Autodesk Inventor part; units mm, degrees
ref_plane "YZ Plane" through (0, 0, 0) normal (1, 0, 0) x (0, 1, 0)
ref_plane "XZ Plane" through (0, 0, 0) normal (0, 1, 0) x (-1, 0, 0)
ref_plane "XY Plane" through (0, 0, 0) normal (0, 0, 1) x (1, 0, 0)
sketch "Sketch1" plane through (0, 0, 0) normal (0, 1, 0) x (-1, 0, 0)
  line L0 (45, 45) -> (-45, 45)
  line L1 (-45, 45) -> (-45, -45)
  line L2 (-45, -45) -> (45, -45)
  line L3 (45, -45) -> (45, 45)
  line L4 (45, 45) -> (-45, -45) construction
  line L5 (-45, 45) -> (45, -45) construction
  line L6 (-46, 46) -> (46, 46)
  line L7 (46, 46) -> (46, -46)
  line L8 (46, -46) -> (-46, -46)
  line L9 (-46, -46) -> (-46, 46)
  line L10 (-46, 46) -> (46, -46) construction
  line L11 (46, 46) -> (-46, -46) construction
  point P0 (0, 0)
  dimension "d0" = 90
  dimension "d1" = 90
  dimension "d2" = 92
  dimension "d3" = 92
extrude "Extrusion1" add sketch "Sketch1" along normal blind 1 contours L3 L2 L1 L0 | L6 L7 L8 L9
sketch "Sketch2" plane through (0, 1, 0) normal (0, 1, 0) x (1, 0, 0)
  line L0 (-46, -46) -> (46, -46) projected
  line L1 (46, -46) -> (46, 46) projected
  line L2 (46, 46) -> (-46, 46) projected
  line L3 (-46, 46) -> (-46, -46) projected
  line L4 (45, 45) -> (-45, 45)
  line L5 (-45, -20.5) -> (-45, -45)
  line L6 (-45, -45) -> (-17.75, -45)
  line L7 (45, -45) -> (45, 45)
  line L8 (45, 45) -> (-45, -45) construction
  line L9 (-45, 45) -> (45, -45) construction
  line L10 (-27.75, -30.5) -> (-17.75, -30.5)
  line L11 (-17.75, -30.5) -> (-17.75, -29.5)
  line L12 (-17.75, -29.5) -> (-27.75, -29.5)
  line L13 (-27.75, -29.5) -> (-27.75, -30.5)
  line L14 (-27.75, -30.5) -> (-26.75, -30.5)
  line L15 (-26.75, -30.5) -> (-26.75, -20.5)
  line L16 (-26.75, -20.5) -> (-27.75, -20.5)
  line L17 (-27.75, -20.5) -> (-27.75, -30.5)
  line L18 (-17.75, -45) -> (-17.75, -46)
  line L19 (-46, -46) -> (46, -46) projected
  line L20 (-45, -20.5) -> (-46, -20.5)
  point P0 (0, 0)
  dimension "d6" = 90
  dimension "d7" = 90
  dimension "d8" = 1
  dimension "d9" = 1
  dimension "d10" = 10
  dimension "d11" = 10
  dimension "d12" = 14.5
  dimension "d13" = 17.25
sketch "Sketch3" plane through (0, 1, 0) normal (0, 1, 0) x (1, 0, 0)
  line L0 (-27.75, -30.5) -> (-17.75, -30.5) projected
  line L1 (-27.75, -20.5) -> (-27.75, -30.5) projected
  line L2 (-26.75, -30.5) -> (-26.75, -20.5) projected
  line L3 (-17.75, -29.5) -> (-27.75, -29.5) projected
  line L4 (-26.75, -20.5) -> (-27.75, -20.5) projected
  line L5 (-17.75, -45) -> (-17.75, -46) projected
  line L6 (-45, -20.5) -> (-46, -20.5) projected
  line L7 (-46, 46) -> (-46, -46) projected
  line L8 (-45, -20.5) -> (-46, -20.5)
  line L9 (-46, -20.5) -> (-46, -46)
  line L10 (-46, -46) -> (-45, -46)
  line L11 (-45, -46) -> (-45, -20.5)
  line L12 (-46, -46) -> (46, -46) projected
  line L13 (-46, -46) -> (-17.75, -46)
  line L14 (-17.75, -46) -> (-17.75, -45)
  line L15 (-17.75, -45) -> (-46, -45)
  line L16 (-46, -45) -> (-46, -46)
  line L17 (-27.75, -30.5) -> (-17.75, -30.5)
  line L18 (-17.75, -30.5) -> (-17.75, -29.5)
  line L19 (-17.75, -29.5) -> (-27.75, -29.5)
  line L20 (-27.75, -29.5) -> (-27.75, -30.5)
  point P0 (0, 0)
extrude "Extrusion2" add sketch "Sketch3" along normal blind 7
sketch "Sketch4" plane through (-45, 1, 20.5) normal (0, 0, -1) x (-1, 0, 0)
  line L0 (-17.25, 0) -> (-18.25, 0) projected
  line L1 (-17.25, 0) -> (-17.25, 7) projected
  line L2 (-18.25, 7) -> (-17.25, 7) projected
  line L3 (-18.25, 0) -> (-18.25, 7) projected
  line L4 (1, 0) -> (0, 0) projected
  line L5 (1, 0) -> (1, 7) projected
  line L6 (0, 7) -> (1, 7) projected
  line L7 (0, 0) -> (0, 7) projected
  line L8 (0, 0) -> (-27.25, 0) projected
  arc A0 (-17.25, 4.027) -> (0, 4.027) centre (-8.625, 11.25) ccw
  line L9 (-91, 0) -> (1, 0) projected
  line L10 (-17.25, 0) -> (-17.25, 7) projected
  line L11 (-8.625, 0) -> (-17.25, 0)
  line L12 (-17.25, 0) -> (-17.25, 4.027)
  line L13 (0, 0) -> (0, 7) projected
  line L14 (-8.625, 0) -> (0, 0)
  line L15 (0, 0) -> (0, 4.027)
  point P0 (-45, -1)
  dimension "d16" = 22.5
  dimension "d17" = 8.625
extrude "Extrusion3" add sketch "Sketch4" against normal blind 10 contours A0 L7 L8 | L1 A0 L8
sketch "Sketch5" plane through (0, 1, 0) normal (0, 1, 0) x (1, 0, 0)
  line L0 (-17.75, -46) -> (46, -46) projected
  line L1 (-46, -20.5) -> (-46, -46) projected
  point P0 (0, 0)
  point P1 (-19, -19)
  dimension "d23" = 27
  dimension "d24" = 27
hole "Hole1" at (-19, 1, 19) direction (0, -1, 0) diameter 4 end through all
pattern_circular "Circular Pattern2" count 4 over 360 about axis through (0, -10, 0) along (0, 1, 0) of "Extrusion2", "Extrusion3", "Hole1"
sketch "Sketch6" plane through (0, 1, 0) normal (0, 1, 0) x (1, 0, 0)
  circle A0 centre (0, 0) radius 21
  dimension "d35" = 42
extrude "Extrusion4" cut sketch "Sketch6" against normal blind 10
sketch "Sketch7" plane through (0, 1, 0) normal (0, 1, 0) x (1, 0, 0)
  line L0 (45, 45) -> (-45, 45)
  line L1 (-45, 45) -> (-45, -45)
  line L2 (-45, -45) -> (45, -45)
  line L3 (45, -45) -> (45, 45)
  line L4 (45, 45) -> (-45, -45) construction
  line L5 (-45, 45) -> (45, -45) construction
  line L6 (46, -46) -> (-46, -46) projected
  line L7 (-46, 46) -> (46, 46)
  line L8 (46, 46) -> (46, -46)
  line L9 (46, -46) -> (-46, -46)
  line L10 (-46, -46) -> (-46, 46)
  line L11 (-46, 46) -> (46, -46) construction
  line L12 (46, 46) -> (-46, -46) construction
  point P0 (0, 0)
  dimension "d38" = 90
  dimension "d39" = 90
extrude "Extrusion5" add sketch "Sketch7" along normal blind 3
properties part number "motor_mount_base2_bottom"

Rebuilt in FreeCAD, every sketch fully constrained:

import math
import FreeCAD as App
import Part
import Sketcher
Q = App.Units.Quantity

doc = App.newDocument("Part")
params = doc.addObject("Spreadsheet::Sheet", "Params")
for row, (alias, value) in enumerate([
    ("sketch1_width", "92 mm"),
    ("pad1_length", "1 mm"),
    ("sketch2_width", "10 mm"),
    ("sketch2_width2", "9 mm"),
    ("sketch2_height", "24.5 mm"),
    ("sketch2_width3", "27.25 mm"),
    ("pad2_length", "7 mm"),
    ("sketch3_radius", "11.25 mm"),
    ("pad3_length", "10 mm"),
    ("sketch4_diameter", "4 mm"),
    ("hole_diameter", "4 mm"),
    ("sketch5_diameter", "42 mm"),
    ("pocket1_length", "10 mm"),
    ("sketch6_width", "90 mm"),
    ("sketch6_width2", "92 mm"),
    ("pad4_length", "3 mm"),
], start=1):
    params.set(f"A{row}", alias)
    params.set(f"B{row}", "=" + value)
    params.setAlias(f"B{row}", alias)

body = doc.addObject("PartDesign::Body", "Body")

# Sketch on XZ plane
sketch1 = body.newObject("Sketcher::SketchObject", "Sketch")
sketch1.AttachmentSupport = (doc.getObject("XZ_Plane"), [""])
sketch1.MapMode = "FlatFace"
sketch1.addGeometry([
    Part.LineSegment(App.Vector(-46, 46, 0), App.Vector(46, 46, 0)),
    Part.LineSegment(App.Vector(46, 46, 0), App.Vector(46, -46, 0)),
    Part.LineSegment(App.Vector(46, -46, 0), App.Vector(-46, -46, 0)),
    Part.LineSegment(App.Vector(-46, -46, 0), App.Vector(-46, 46, 0)),
], False)
sketch1.addConstraint([
    Sketcher.Constraint("Coincident", 0, 2, 1, 1),
    Sketcher.Constraint("Coincident", 1, 2, 2, 1),
    Sketcher.Constraint("Coincident", 2, 2, 3, 1),
    Sketcher.Constraint("Coincident", 3, 2, 0, 1),
    Sketcher.Constraint("Horizontal", 0),
    Sketcher.Constraint("Vertical", 1),
    Sketcher.Constraint("Horizontal", 2),
    Sketcher.Constraint("Vertical", 3),
    Sketcher.Constraint("Symmetric", 0, 2, 2, 2, -1, 1),
    Sketcher.Constraint("Equal", 2, 1),
    Sketcher.Constraint("DistanceX", 0, 1, 0, 2, Q("92 mm")),
])
sketch1.setExpression("Constraints[10]", "Params.sketch1_width")
pad1 = body.newObject("PartDesign::Pad", "Pad")
pad1.Profile = sketch1
pad1.setExpression("Length", "Params.pad1_length")
pad1.Reversed = True

# Sketch on XZ plane
sketch2 = body.newObject("Sketcher::SketchObject", "Sketch001")
sketch2.AttachmentSupport = (doc.getObject("XZ_Plane"), [""])
sketch2.MapMode = "FlatFace"
sketch2.AttachmentOffset = App.Placement(App.Vector(0, 0, -1), App.Rotation())
sketch2.addGeometry([
    Part.LineSegment(App.Vector(-27.8, 30.5, 0), App.Vector(-17.8, 30.5, 0)),  # 0
    Part.LineSegment(App.Vector(-17.8, 30.5, 0), App.Vector(-17.8, 29.5, 0)),  # 1
    Part.LineSegment(App.Vector(-17.8, 29.5, 0), App.Vector(-26.8, 29.5, 0)),  # 2
    Part.LineSegment(App.Vector(-26.8, 29.5, 0), App.Vector(-26.8, 20.5, 0)),  # 3
    Part.LineSegment(App.Vector(-26.8, 20.5, 0), App.Vector(-27.8, 20.5, 0)),  # 4
    Part.LineSegment(App.Vector(-27.8, 20.5, 0), App.Vector(-27.8, 30.5, 0)),  # 5
    Part.LineSegment(App.Vector(-17.8, 46, 0), App.Vector(-17.8, 45, 0)),  # 6
    Part.LineSegment(App.Vector(-17.8, 45, 0), App.Vector(-45, 45, 0)),  # 7
    Part.LineSegment(App.Vector(-45, 45, 0), App.Vector(-45, 20.5, 0)),  # 8
    Part.LineSegment(App.Vector(-45, 20.5, 0), App.Vector(-46, 20.5, 0)),  # 9
    Part.LineSegment(App.Vector(-46, 20.5, 0), App.Vector(-46, 46, 0)),  # 10
    Part.LineSegment(App.Vector(-46, 46, 0), App.Vector(-17.8, 46, 0)),  # 11
], False)
sketch2.addConstraint([
    Sketcher.Constraint("Coincident", 0, 2, 1, 1),
    Sketcher.Constraint("Coincident", 1, 2, 2, 1),
    Sketcher.Constraint("Coincident", 2, 2, 3, 1),
    Sketcher.Constraint("Coincident", 3, 2, 4, 1),
    Sketcher.Constraint("Coincident", 4, 2, 5, 1),
    Sketcher.Constraint("Coincident", 5, 2, 0, 1),
    Sketcher.Constraint("Coincident", 6, 2, 7, 1),
    Sketcher.Constraint("Coincident", 7, 2, 8, 1),
    Sketcher.Constraint("Coincident", 8, 2, 9, 1),
    Sketcher.Constraint("Coincident", 9, 2, 10, 1),
    Sketcher.Constraint("Coincident", 10, 2, 11, 1),
    Sketcher.Constraint("Coincident", 11, 2, 6, 1),
    Sketcher.Constraint("Horizontal", 0),
    Sketcher.Constraint("Vertical", 1),
    Sketcher.Constraint("Horizontal", 2),
    Sketcher.Constraint("Vertical", 3),
    Sketcher.Constraint("Horizontal", 4),
    Sketcher.Constraint("Vertical", 5),
    Sketcher.Constraint("Vertical", 6),
    Sketcher.Constraint("Horizontal", 7),
    Sketcher.Constraint("Vertical", 8),
    Sketcher.Constraint("Horizontal", 9),
    Sketcher.Constraint("Vertical", 10),
    Sketcher.Constraint("Horizontal", 11),
    Sketcher.Constraint("Horizontal", 4, 2, 8, 2),
    Sketcher.Constraint("Vertical", 1, 2, 6, 2),
    Sketcher.Constraint("Equal", 4, 9),
    Sketcher.Constraint("Equal", 9, 1),
    Sketcher.Constraint("Equal", 2, 3),
    Sketcher.Constraint("Equal", 1, 6),
    Sketcher.Constraint("DistanceX", 0, 1, 0, 2, Q("10 mm")),
    Sketcher.Constraint("DistanceX", 2, 2, 2, 1, Q("9 mm")),
    Sketcher.Constraint("DistanceY", 8, 2, 8, 1, Q("24.5 mm")),
    Sketcher.Constraint("DistanceY", -1, 1, 6, 2, Q("45 mm")),
    Sketcher.Constraint("DistanceX", 7, 2, -1, 1, Q("45 mm")),
    Sketcher.Constraint("DistanceX", 7, 2, 7, 1, Q("27.25 mm")),
])
sketch2.setExpression("Constraints[30]", "Params.sketch2_width")
sketch2.setExpression("Constraints[31]", "Params.sketch2_width2")
sketch2.setExpression("Constraints[32]", "Params.sketch2_height")
sketch2.setExpression("Constraints[35]", "Params.sketch2_width3")
pad2 = body.newObject("PartDesign::Pad", "Pad001")
pad2.Profile = sketch2
pad2.setExpression("Length", "Params.pad2_length")
pad2.Reversed = True

# Sketch on XY plane
sketch3 = body.newObject("Sketcher::SketchObject", "Sketch002")
sketch3.AttachmentSupport = (doc.getObject("XY_Plane"), [""])
sketch3.MapMode = "FlatFace"
sketch3.AttachmentOffset = App.Placement(App.Vector(0, 0, 20.5), App.Rotation())
sketch3.addGeometry([
    Part.ArcOfCircle(Part.Circle(App.Vector(-36.4, 12.2, 0), App.Vector(0, 0, 1), 11.2), math.radians(-140), math.radians(-90)),  # 0
    Part.LineSegment(App.Vector(-36.4, 1, 0), App.Vector(-45, 1, 0)),  # 1
    Part.LineSegment(App.Vector(-45, 1, 0), App.Vector(-45, 5, 0)),  # 2
    Part.LineSegment(App.Vector(-27.8, 5, 0), App.Vector(-27.8, 1, 0)),  # 3
    Part.LineSegment(App.Vector(-27.8, 1, 0), App.Vector(-36.4, 1, 0)),  # 4
    Part.ArcOfCircle(Part.Circle(App.Vector(-36.4, 12.2, 0), App.Vector(0, 0, 1), 11.2), math.radians(-90), math.radians(-40)),  # 5
], False)
sketch3.addConstraint([
    Sketcher.Constraint("Tangent", 0, 2, 1, 1),
    Sketcher.Constraint("Coincident", 1, 2, 2, 1),
    Sketcher.Constraint("Coincident", 2, 2, 0, 1),
    Sketcher.Constraint("Coincident", 3, 2, 4, 1),
    Sketcher.Constraint("Tangent", 4, 2, 5, 1),
    Sketcher.Constraint("Coincident", 5, 2, 3, 1),
    Sketcher.Constraint("Horizontal", 1),
    Sketcher.Constraint("Vertical", 2),
    Sketcher.Constraint("Vertical", 3),
    Sketcher.Constraint("Horizontal", 4),
    Sketcher.Constraint("Coincident", 5, 3, 0, 3),
    Sketcher.Constraint("Equal", 0, 5),
    Sketcher.Constraint("Horizontal", 2, 2, 5, 2),
    Sketcher.Constraint("Radius", 0, Q("11.25 mm")),
    Sketcher.Constraint("DistanceX", 1, 2, 1, 1, Q("8.625 mm")),
    Sketcher.Constraint("DistanceY", -1, 1, 0, 2, Q("1 mm")),
    Sketcher.Constraint("DistanceX", 1, 2, -1, 1, Q("45 mm")),
])
sketch3.setExpression("Constraints[13]", "Params.sketch3_radius")
pad3 = body.newObject("PartDesign::Pad", "Pad002")
pad3.Profile = sketch3
pad3.setExpression("Length", "Params.pad3_length")

# Sketch on XZ plane
sketch4 = body.newObject("Sketcher::SketchObject", "Sketch003")
sketch4.AttachmentSupport = (doc.getObject("XZ_Plane"), [""])
sketch4.MapMode = "FlatFace"
sketch4.AttachmentOffset = App.Placement(App.Vector(0, 0, -1), App.Rotation())
sketch4.addGeometry(Part.Circle(App.Vector(-19, 19, 0), App.Vector(0, 0, 1), 2), False)
sketch4.addConstraint([
    Sketcher.Constraint("Diameter", 0, Q("4 mm")),
    Sketcher.Constraint("DistanceX", 0, 3, -1, 1, Q("19 mm")),
    Sketcher.Constraint("DistanceY", -1, 1, 0, 3, Q("19 mm")),
])
sketch4.setExpression("Constraints[0]", "Params.sketch4_diameter")
doc.recompute()
hole = body.newObject("PartDesign::Hole", "Hole")
hole.Profile = sketch4
hole.ThreadType = "None"
hole.setExpression("Diameter", "Params.hole_diameter")
hole.DepthType = "ThroughAll"
hole.Reversed = True
doc.recompute()

polarpattern = body.newObject("PartDesign::PolarPattern", "PolarPattern")
polarpattern.Originals = [pad2, pad3, hole]
polarpattern.Axis = (doc.getObject("Y_Axis"), [""])
polarpattern.Angle = 360
polarpattern.Occurrences = 4
body.Tip = polarpattern

# Sketch on XZ plane
sketch5 = body.newObject("Sketcher::SketchObject", "Sketch004")
sketch5.AttachmentSupport = (doc.getObject("XZ_Plane"), [""])
sketch5.MapMode = "FlatFace"
sketch5.AttachmentOffset = App.Placement(App.Vector(0, 0, -1), App.Rotation())
sketch5.addGeometry(Part.Circle(App.Vector(0, 0, 0), App.Vector(0, 0, 1), 21), False)
sketch5.addConstraint([
    Sketcher.Constraint("Coincident", 0, 3, -1, 1),
    Sketcher.Constraint("Diameter", 0, Q("42 mm")),
])
sketch5.setExpression("Constraints[1]", "Params.sketch5_diameter")
pocket1 = body.newObject("PartDesign::Pocket", "Pocket")
pocket1.Profile = sketch5
pocket1.setExpression("Length", "Params.pocket1_length")
pocket1.Reversed = True

# Sketch on XZ plane
sketch6 = body.newObject("Sketcher::SketchObject", "Sketch005")
sketch6.AttachmentSupport = (doc.getObject("XZ_Plane"), [""])
sketch6.MapMode = "FlatFace"
sketch6.AttachmentOffset = App.Placement(App.Vector(0, 0, -1), App.Rotation())
sketch6.addGeometry([
    Part.LineSegment(App.Vector(-46, 46, 0), App.Vector(46, 46, 0)),  # 0
    Part.LineSegment(App.Vector(46, 46, 0), App.Vector(46, -46, 0)),  # 1
    Part.LineSegment(App.Vector(46, -46, 0), App.Vector(-46, -46, 0)),  # 2
    Part.LineSegment(App.Vector(-46, -46, 0), App.Vector(-46, 46, 0)),  # 3
    Part.LineSegment(App.Vector(-45, -45, 0), App.Vector(45, -45, 0)),  # 4
    Part.LineSegment(App.Vector(45, -45, 0), App.Vector(45, 45, 0)),  # 5
    Part.LineSegment(App.Vector(45, 45, 0), App.Vector(-45, 45, 0)),  # 6
    Part.LineSegment(App.Vector(-45, 45, 0), App.Vector(-45, -45, 0)),  # 7
], False)
sketch6.addConstraint([
    Sketcher.Constraint("Coincident", 0, 2, 1, 1),
    Sketcher.Constraint("Coincident", 1, 2, 2, 1),
    Sketcher.Constraint("Coincident", 2, 2, 3, 1),
    Sketcher.Constraint("Coincident", 3, 2, 0, 1),
    Sketcher.Constraint("Coincident", 4, 2, 5, 1),
    Sketcher.Constraint("Coincident", 5, 2, 6, 1),
    Sketcher.Constraint("Coincident", 6, 2, 7, 1),
    Sketcher.Constraint("Coincident", 7, 2, 4, 1),
    Sketcher.Constraint("Horizontal", 0),
    Sketcher.Constraint("Vertical", 1),
    Sketcher.Constraint("Horizontal", 2),
    Sketcher.Constraint("Vertical", 3),
    Sketcher.Constraint("Horizontal", 4),
    Sketcher.Constraint("Vertical", 5),
    Sketcher.Constraint("Horizontal", 6),
    Sketcher.Constraint("Vertical", 7),
    Sketcher.Constraint("Symmetric", 0, 2, 2, 2, -1, 1),
    Sketcher.Constraint("Symmetric", 4, 2, 6, 2, -1, 1),
    Sketcher.Constraint("Equal", 2, 1),
    Sketcher.Constraint("Equal", 6, 5),
    Sketcher.Constraint("DistanceX", 4, 1, 4, 2, Q("90 mm")),
    Sketcher.Constraint("DistanceX", 0, 1, 0, 2, Q("92 mm")),
])
sketch6.setExpression("Constraints[20]", "Params.sketch6_width")
sketch6.setExpression("Constraints[21]", "Params.sketch6_width2")
pad4 = body.newObject("PartDesign::Pad", "Pad003")
pad4.Profile = sketch6
pad4.setExpression("Length", "Params.pad4_length")
pad4.Reversed = True

doc.recompute()
